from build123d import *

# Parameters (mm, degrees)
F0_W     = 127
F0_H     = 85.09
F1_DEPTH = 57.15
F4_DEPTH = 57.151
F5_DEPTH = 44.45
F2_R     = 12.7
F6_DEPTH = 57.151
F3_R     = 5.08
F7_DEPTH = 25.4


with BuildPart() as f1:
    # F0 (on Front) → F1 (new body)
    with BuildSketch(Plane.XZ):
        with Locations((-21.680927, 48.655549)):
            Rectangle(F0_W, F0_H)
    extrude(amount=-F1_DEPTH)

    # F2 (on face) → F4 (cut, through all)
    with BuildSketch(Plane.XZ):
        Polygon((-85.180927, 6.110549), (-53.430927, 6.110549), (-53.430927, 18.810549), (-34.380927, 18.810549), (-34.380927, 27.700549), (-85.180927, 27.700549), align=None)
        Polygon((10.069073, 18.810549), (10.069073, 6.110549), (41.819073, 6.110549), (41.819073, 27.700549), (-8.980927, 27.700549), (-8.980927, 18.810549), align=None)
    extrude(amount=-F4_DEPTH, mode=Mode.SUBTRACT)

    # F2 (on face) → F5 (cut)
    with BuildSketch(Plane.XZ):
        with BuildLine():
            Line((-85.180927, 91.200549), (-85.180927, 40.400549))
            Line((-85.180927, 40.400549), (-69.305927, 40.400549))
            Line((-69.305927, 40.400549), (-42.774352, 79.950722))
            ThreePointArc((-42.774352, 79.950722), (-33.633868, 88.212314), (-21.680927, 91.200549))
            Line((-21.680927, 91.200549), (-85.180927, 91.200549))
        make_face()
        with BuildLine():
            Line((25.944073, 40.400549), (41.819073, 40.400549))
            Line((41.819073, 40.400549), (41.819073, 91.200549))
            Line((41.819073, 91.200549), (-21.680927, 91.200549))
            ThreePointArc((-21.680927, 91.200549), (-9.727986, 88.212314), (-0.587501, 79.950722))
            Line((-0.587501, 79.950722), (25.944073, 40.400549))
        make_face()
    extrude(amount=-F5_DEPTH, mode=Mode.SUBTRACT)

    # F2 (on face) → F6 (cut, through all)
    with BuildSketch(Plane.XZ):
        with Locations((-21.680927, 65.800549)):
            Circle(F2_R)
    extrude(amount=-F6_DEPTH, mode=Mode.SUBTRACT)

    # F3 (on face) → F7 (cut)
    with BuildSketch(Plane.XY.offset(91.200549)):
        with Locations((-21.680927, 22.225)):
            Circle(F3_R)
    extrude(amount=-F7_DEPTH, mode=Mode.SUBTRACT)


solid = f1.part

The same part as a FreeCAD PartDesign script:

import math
import FreeCAD as App
import Part
import Sketcher
from FreeCAD import Vector
Q = App.Units.Quantity


def add_polygon(sketch, points):
    """Adds a closed chain of lines whose ends are joined by coincident constraints."""
    first, n = sketch.GeometryCount, len(points)
    for a, b in zip(points, points[1:] + points[:1]):
        sketch.addGeometry(Part.LineSegment(App.Vector(*a, 0), App.Vector(*b, 0)), False)
    for i in range(n):
        sketch.addConstraint(Sketcher.Constraint("Coincident", first + i, 2, first + (i + 1) % n, 1))

doc = App.newDocument("Part")
body = doc.addObject("PartDesign::Body", "Body")

# Sketch on XZ plane
sketch1 = body.newObject("Sketcher::SketchObject", "Sketch")
sketch1.AttachmentSupport = (doc.getObject("XZ_Plane"), [""])
sketch1.MapMode = "FlatFace"
add_polygon(sketch1, [(-85.180927, 91.200549), (-85.180927, 6.110549), (41.819073, 6.110549), (41.819073, 91.200549)])  # lines 0-3
sketch1.addConstraint([
    Sketcher.Constraint("Vertical", 0),
    Sketcher.Constraint("Horizontal", 1),
    Sketcher.Constraint("Vertical", 2),
    Sketcher.Constraint("Horizontal", 3),
    Sketcher.Constraint("DistanceX", 1, 1, 1, 2, Q("5 in")),
    Sketcher.Constraint("DistanceY", 0, 2, 0, 1, Q("3.35 in")),
    Sketcher.Constraint("DistanceY", -1, 1, 0, 2, 6.110549),
    Sketcher.Constraint("DistanceX", 0, 2, -1, 1, 85.180927),
])
pad1 = body.newObject("PartDesign::Pad", "Pad")
pad1.Profile = sketch1
pad1.Length = Q("2.25 in")
pad1.Reversed = True

# Sketch on XZ plane
sketch2 = body.newObject("Sketcher::SketchObject", "Sketch001")
sketch2.AttachmentSupport = (doc.getObject("XZ_Plane"), [""])
sketch2.MapMode = "FlatFace"
add_polygon(sketch2, [(-85.180927, 6.110549), (-53.430927, 6.110549), (-53.430927, 18.810549), (-34.380927, 18.810549), (-34.380927, 27.700549), (-85.180927, 27.700549)])  # lines 0-5
add_polygon(sketch2, [(10.069073, 18.810549), (10.069073, 6.110549), (41.819073, 6.110549), (41.819073, 27.700549), (-8.980927, 27.700549), (-8.980927, 18.810549)])  # lines 6-11
sketch2.addConstraint([
    Sketcher.Constraint("Horizontal", 0),
    Sketcher.Constraint("Vertical", 1),
    Sketcher.Constraint("Horizontal", 2),
    Sketcher.Constraint("Vertical", 3),
    Sketcher.Constraint("Horizontal", 4),
    Sketcher.Constraint("Vertical", 5),
    Sketcher.Constraint("Vertical", 6),
    Sketcher.Constraint("Horizontal", 7),
    Sketcher.Constraint("Vertical", 8),
    Sketcher.Constraint("Horizontal", 9),
    Sketcher.Constraint("Vertical", 10),
    Sketcher.Constraint("Horizontal", 11),
    Sketcher.Constraint("Horizontal", 5, 2, 6, 2),
    Sketcher.Constraint("Horizontal", 4, 2, 8, 2),
    Sketcher.Constraint("Horizontal", 2, 2, 10, 2),
    Sketcher.Constraint("Equal", 0, 7),
    Sketcher.Constraint("Equal", 4, 9),
    Sketcher.Constraint("DistanceX", 4, 2, 4, 1, Q("2 in")),
    Sketcher.Constraint("DistanceY", 1, 1, 1, 2, Q("0.5 in")),
    Sketcher.Constraint("DistanceX", 2, 2, 7, 2, Q("3 in")),
    Sketcher.Constraint("DistanceX", 0, 1, 0, 2, Q("1.25 in")),
    Sketcher.Constraint("DistanceY", 3, 1, 3, 2, Q("0.35 in")),
    Sketcher.Constraint("DistanceY", -1, 1, 0, 2, 6.110549),
    Sketcher.Constraint("DistanceX", 0, 2, -1, 1, 53.430927),
])
pocket1 = body.newObject("PartDesign::Pocket", "Pocket")
pocket1.Profile = sketch2
pocket1.Type = "ThroughAll"

# Sketch on XZ plane
sketch3 = body.newObject("Sketcher::SketchObject", "Sketch002")
sketch3.AttachmentSupport = (doc.getObject("XZ_Plane"), [""])
sketch3.MapMode = "FlatFace"
sketch3.addGeometry([
    Part.LineSegment(Vector(-85.180927, 91.200549, 0), Vector(-85.180927, 40.400549, 0)),  # 0
    Part.LineSegment(Vector(-85.180927, 40.400549, 0), Vector(-69.305927, 40.400549, 0)),  # 1
    Part.LineSegment(Vector(-69.305927, 40.400549, 0), Vector(-42.774352, 79.950722, 0)),  # 2
    Part.ArcOfCircle(Part.Circle(Vector(-21.680928, 65.800552, 0), Vector(0, 0, 1), 25.399997), math.radians(89.999997), math.radians(146.144978)),  # 3
    Part.LineSegment(Vector(-21.680927, 91.200549, 0), Vector(-85.180927, 91.200549, 0)),  # 4
    Part.LineSegment(Vector(25.944073, 40.400549, 0), Vector(41.819073, 40.400549, 0)),  # 5
    Part.LineSegment(Vector(41.819073, 40.400549, 0), Vector(41.819073, 91.200549, 0)),  # 6
    Part.LineSegment(Vector(41.819073, 91.200549, 0), Vector(-21.680927, 91.200549, 0)),  # 7
    Part.ArcOfCircle(Part.Circle(Vector(-21.680927, 65.800549, 0), Vector(0, 0, 1), 25.4), math.radians(33.855026), math.radians(90.000001)),  # 8
    Part.LineSegment(Vector(-0.587501, 79.950722, 0), Vector(25.944073, 40.400549, 0)),  # 9
], False)
sketch3.addConstraint([
    Sketcher.Constraint("Coincident", 0, 2, 1, 1),
    Sketcher.Constraint("Coincident", 1, 2, 2, 1),
    Sketcher.Constraint("Tangent", 2, 2, 3, 2),
    Sketcher.Constraint("Tangent", 3, 1, 4, 1),
    Sketcher.Constraint("Coincident", 4, 2, 0, 1),
    Sketcher.Constraint("Coincident", 5, 2, 6, 1),
    Sketcher.Constraint("Coincident", 6, 2, 7, 1),
    Sketcher.Constraint("Tangent", 7, 2, 8, 2),
    Sketcher.Constraint("Tangent", 8, 1, 9, 1),
    Sketcher.Constraint("Coincident", 9, 2, 5, 1),
    Sketcher.Constraint("Vertical", 0),
    Sketcher.Constraint("Horizontal", 1),
    Sketcher.Constraint("Horizontal", 4),
    Sketcher.Constraint("Horizontal", 5),
    Sketcher.Constraint("Vertical", 6),
    Sketcher.Constraint("Horizontal", 7),
    Sketcher.Constraint("Coincident", 8, 3, 3, 3),
    Sketcher.Constraint("Horizontal", 1, 2, 5, 2),
    Sketcher.Constraint("Horizontal", 4, 2, 6, 2),
    Sketcher.Constraint("Horizontal", 2, 2, 8, 1),
    Sketcher.Constraint("Equal", 1, 5),
    Sketcher.Constraint("Radius", 3, Q("0.9999999 in")),
    Sketcher.Constraint("DistanceY", 0, 2, 0, 1, Q("2 in")),
    Sketcher.Constraint("DistanceX", 4, 2, 4, 1, Q("2.5 in")),
    Sketcher.Constraint("DistanceX", 1, 1, 1, 2, Q("0.625 in")),
    Sketcher.Constraint("DistanceX", 8, 1, -1, 1, 0.587501),
    Sketcher.Constraint("DistanceY", -1, 1, 8, 3, 65.800549),
])
pocket2 = body.newObject("PartDesign::Pocket", "Pocket001")
pocket2.Profile = sketch3
pocket2.Length = Q("1.75 in")

# Sketch on XZ plane
sketch4 = body.newObject("Sketcher::SketchObject", "Sketch003")
sketch4.AttachmentSupport = (doc.getObject("XZ_Plane"), [""])
sketch4.MapMode = "FlatFace"
sketch4.addGeometry(Part.Circle(Vector(-21.680927, 65.800549, 0), Vector(0, 0, 1), 12.7), False)
sketch4.addConstraint([
    Sketcher.Constraint("Diameter", 0, Q("1 in")),
    Sketcher.Constraint("DistanceY", -1, 1, 0, 3, 65.800549),
    Sketcher.Constraint("DistanceX", 0, 3, -1, 1, 21.680927),
])
pocket3 = body.newObject("PartDesign::Pocket", "Pocket002")
pocket3.Profile = sketch4
pocket3.Type = "ThroughAll"

# Sketch on XY plane
sketch5 = body.newObject("Sketcher::SketchObject", "Sketch004")
sketch5.AttachmentSupport = (doc.getObject("XY_Plane"), [""])
sketch5.MapMode = "FlatFace"
sketch5.AttachmentOffset = App.Placement(Vector(0, 0, 91.200549), App.Rotation())
sketch5.addGeometry(Part.Circle(Vector(-21.680927, 22.225, 0), Vector(0, 0, 1), 5.08), False)
sketch5.addConstraint([
    Sketcher.Constraint("Diameter", 0, Q("0.4 in")),
    Sketcher.Constraint("DistanceY", -1, 1, 0, 3, Q("0.875 in")),
    Sketcher.Constraint("DistanceX", 0, 3, -1, 1, 21.680927),
])
pocket4 = body.newObject("PartDesign::Pocket", "Pocket003")
pocket4.Profile = sketch5
pocket4.Length = Q("1 in")

doc.recompute()
